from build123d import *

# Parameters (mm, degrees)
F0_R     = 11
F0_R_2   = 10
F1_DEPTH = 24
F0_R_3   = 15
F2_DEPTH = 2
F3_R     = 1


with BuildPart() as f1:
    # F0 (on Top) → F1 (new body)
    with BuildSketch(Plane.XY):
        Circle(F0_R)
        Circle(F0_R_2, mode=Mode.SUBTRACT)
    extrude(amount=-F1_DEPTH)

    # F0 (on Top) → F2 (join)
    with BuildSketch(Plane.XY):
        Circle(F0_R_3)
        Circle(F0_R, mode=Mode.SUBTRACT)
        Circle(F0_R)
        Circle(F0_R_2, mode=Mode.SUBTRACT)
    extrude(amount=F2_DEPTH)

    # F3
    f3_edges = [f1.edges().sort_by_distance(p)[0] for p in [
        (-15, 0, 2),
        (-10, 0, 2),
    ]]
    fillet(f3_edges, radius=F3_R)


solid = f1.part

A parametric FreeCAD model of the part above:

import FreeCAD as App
import Part
import Sketcher
Q = App.Units.Quantity


def edges_at(feature, points):
    """Names of the edges that pass closest to the given points."""
    edges = feature.Shape.Edges
    near = lambda p: min(range(len(edges)), key=lambda i: edges[i].distToShape(Part.Vertex(*p))[0])
    return sorted({f"Edge{near(p) + 1}" for p in points})

doc = App.newDocument("Part")
body = doc.addObject("PartDesign::Body", "Body")

sketch1 = body.newObject("Sketcher::SketchObject", "Sketch")
sketch1.AttachmentSupport = (doc.getObject("XY_Plane"), [""])
sketch1.MapMode = "FlatFace"
sketch1.addGeometry(Part.Circle(App.Vector(0, 0, 0), App.Vector(0, 0, 1), 11), False)
sketch1.addGeometry(Part.Circle(App.Vector(0, 0, 0), App.Vector(0, 0, 1), 10), False)
sketch1.addConstraint(Sketcher.Constraint("Coincident", 0, 3, -1, 1))
sketch1.addConstraint(Sketcher.Constraint("Coincident", 1, 3, -1, 1))
sketch1.addConstraint(Sketcher.Constraint("Diameter", 0, Q("22 mm")))
sketch1.addConstraint(Sketcher.Constraint("Diameter", 1, Q("20 mm")))
pad1 = body.newObject("PartDesign::Pad", "Pad")
pad1.Profile = sketch1
pad1.Length = 24
pad1.Reversed = True

sketch2 = body.newObject("Sketcher::SketchObject", "Sketch001")
sketch2.AttachmentSupport = (doc.getObject("XY_Plane"), [""])
sketch2.MapMode = "FlatFace"
sketch2.addGeometry(Part.Circle(App.Vector(0, 0, 0), App.Vector(0, 0, 1), 15), False)
sketch2.addGeometry(Part.Circle(App.Vector(0, 0, 0), App.Vector(0, 0, 1), 10), False)
sketch2.addConstraint(Sketcher.Constraint("Coincident", 0, 3, -1, 1))
sketch2.addConstraint(Sketcher.Constraint("Coincident", 1, 3, -1, 1))
sketch2.addConstraint(Sketcher.Constraint("Diameter", 0, Q("30 mm")))
sketch2.addConstraint(Sketcher.Constraint("Diameter", 1, Q("20 mm")))
pad2 = body.newObject("PartDesign::Pad", "Pad001")
pad2.Profile = sketch2
pad2.Length = 2
doc.recompute()

fillet = body.newObject("PartDesign::Fillet", "Fillet")
fillet.Base = (pad2, edges_at(pad2, [(-15, 0, 2), (-10, 0, 2)]))
fillet.Radius = 1

doc.recompute()
